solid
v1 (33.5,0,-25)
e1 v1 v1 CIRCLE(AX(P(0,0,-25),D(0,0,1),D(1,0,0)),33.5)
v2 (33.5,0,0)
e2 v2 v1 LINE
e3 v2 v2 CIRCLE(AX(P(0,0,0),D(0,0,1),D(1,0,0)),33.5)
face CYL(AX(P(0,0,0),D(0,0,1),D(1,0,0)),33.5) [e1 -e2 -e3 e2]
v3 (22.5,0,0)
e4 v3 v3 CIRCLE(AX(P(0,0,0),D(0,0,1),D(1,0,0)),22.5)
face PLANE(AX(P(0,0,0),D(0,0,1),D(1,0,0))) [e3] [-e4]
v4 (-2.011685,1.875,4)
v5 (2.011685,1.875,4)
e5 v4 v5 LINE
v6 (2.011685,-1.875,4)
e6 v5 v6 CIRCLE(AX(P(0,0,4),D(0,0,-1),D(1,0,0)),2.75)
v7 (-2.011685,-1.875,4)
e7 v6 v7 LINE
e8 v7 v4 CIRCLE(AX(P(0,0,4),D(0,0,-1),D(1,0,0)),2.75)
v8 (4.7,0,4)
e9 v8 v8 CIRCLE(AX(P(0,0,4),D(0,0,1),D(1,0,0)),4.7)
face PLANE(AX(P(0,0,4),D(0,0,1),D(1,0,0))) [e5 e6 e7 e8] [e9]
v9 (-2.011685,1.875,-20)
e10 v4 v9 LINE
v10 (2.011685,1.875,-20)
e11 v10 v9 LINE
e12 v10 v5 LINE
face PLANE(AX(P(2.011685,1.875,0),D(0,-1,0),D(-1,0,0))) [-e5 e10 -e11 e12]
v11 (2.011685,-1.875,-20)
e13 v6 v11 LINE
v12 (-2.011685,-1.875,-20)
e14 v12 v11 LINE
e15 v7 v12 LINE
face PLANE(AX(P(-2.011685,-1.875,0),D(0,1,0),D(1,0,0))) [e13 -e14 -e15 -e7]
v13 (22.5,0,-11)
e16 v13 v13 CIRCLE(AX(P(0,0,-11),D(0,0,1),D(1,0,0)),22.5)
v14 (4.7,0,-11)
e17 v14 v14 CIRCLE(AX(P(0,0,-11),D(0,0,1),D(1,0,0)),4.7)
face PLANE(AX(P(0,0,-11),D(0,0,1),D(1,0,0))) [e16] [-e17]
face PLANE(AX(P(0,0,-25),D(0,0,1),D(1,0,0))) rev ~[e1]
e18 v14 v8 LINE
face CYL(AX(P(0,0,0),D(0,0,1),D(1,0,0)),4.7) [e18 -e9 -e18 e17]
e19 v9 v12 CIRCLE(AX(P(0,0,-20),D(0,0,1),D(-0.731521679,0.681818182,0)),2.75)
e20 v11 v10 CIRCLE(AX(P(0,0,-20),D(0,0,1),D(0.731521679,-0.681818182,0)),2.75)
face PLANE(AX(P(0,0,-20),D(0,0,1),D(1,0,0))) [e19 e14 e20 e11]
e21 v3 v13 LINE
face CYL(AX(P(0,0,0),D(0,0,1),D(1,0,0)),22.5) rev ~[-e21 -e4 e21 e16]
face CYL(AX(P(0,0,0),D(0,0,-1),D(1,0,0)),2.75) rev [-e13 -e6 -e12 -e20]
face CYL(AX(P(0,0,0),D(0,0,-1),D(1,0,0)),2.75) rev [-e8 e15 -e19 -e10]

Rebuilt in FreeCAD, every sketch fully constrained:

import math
import FreeCAD as App
import Part
import Sketcher
from FreeCAD import Vector

doc = App.newDocument("Part")
body = doc.addObject("PartDesign::Body", "Body")

# Sketch on XY plane
sketch1 = body.newObject("Sketcher::SketchObject", "Sketch")
sketch1.AttachmentSupport = (doc.getObject("XY_Plane"), [""])
sketch1.MapMode = "FlatFace"
sketch1.addGeometry(Part.Circle(Vector(0, 0, 0), Vector(0, 0, 1), 34), False)
sketch1.addConstraint([
    Sketcher.Constraint("Coincident", 0, 3, -1, 1),
    Sketcher.Constraint("Diameter", 0, 67.0),
])
pad1 = body.newObject("PartDesign::Pad", "Pad")
pad1.Profile = sketch1
pad1.Length = 25
pad1.Reversed = True

# Sketch on XY plane
sketch2 = body.newObject("Sketcher::SketchObject", "Sketch001")
sketch2.AttachmentSupport = (doc.getObject("XY_Plane"), [""])
sketch2.MapMode = "FlatFace"
sketch2.addGeometry(Part.Circle(Vector(0, 0, 0), Vector(0, 0, 1), 4.7), False)
sketch2.addConstraint([
    Sketcher.Constraint("Coincident", 0, 3, -1, 1),
    Sketcher.Constraint("Diameter", 0, 9.4),
])
pad2 = body.newObject("PartDesign::Pad", "Pad001")
pad2.Profile = sketch2
pad2.Length = 4

# Sketch on XY plane
sketch3 = body.newObject("Sketcher::SketchObject", "Sketch002")
sketch3.AttachmentSupport = (doc.getObject("XY_Plane"), [""])
sketch3.MapMode = "FlatFace"
sketch3.addGeometry([
    Part.ArcOfCircle(Part.Circle(Vector(0, 0, 0), Vector(0, 0, 1), 2.8), math.radians(-43), math.radians(43)),
    Part.LineSegment(Vector(2, 1.9, 0), Vector(-2, 1.9, 0)),
    Part.ArcOfCircle(Part.Circle(Vector(0, 0, 0), Vector(0, 0, 1), 2.8), math.radians(137), math.radians(223)),
    Part.LineSegment(Vector(-2, -1.9, 0), Vector(2, -1.9, 0)),
], False)
sketch3.addConstraint([
    Sketcher.Constraint("Coincident", 0, 2, 1, 1),
    Sketcher.Constraint("Coincident", 1, 2, 2, 1),
    Sketcher.Constraint("Coincident", 2, 2, 3, 1),
    Sketcher.Constraint("Coincident", 3, 2, 0, 1),
    Sketcher.Constraint("Horizontal", 1),
    Sketcher.Constraint("Horizontal", 3),
    Sketcher.Constraint("Coincident", 0, 3, -1, 1),
    Sketcher.Constraint("Coincident", 2, 3, -1, 1),
    Sketcher.Constraint("Equal", 0, 2),
    Sketcher.Constraint("Vertical", 1, 2, 2, 2),
    Sketcher.Constraint("Radius", 0, 2.75),
    Sketcher.Constraint("DistanceY", 2, 2, 1, 2, 3.75),
])
pocket1 = body.newObject("PartDesign::Pocket", "Pocket")
pocket1.Profile = sketch3
pocket1.Type = "TwoLengths"
pocket1.Length = 7
pocket1.Length2 = 20
pocket1.Reversed = True

# Sketch on XY plane
sketch4 = body.newObject("Sketcher::SketchObject", "Sketch003")
sketch4.AttachmentSupport = (doc.getObject("XY_Plane"), [""])
sketch4.MapMode = "FlatFace"
sketch4.addGeometry([
    Part.Circle(Vector(0, 0, 0), Vector(0, 0, 1), 22.5),
    Part.Circle(Vector(0, 0, 0), Vector(0, 0, 1), 4.7),
], False)
sketch4.addConstraint([
    Sketcher.Constraint("Coincident", 0, 3, -1, 1),
    Sketcher.Constraint("Coincident", 1, 3, -1, 1),
    Sketcher.Constraint("Diameter", 0, 45.0),
    Sketcher.Constraint("Diameter", 1, 9.4),
])
pocket2 = body.newObject("PartDesign::Pocket", "Pocket001")
pocket2.Profile = sketch4
pocket2.Length = 11

doc.recompute()
